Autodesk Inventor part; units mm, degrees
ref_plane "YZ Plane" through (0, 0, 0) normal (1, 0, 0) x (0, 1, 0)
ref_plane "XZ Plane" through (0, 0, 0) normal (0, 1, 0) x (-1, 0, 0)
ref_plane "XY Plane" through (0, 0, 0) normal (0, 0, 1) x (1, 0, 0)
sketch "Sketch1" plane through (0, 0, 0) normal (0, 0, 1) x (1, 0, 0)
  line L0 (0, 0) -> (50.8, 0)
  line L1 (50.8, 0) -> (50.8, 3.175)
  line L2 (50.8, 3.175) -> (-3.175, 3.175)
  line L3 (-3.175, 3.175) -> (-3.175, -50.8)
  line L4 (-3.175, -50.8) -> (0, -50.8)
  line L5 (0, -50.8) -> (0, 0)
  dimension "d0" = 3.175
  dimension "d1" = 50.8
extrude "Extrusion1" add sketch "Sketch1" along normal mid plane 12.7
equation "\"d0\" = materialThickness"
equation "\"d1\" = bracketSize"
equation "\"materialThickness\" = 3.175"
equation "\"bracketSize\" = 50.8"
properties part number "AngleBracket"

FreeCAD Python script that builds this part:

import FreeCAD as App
import Part
import Sketcher
from FreeCAD import Vector
Q = App.Units.Quantity


def add_polygon(sketch, points):
    """Adds a closed chain of lines whose ends are joined by coincident constraints."""
    first, n = sketch.GeometryCount, len(points)
    for a, b in zip(points, points[1:] + points[:1]):
        sketch.addGeometry(Part.LineSegment(App.Vector(*a, 0), App.Vector(*b, 0)), False)
    for i in range(n):
        sketch.addConstraint(Sketcher.Constraint("Coincident", first + i, 2, first + (i + 1) % n, 1))

doc = App.newDocument("Part")
body = doc.addObject("PartDesign::Body", "Body")

# Sketch on XY plane
sketch1 = body.newObject("Sketcher::SketchObject", "Sketch")
sketch1.AttachmentSupport = (doc.getObject("XY_Plane"), [""])
sketch1.MapMode = "FlatFace"
add_polygon(sketch1, [(0, -50.8), (0, 0), (50.8, 0), (50.8, 3.175), (-3.175, 3.175), (-3.175, -50.8)])  # lines 0-5
sketch1.addConstraint(Sketcher.Constraint("Vertical", 0))
sketch1.addConstraint(Sketcher.Constraint("Horizontal", 1))
sketch1.addConstraint(Sketcher.Constraint("Vertical", 2))
sketch1.addConstraint(Sketcher.Constraint("Horizontal", 3))
sketch1.addConstraint(Sketcher.Constraint("Vertical", 4))
sketch1.addConstraint(Sketcher.Constraint("Horizontal", 5))
sketch1.addConstraint(Sketcher.Constraint("Coincident", 0, 2, -1, 1))
sketch1.addConstraint(Sketcher.Constraint("Equal", 1, 0))
sketch1.addConstraint(Sketcher.Constraint("Equal", 5, 2))
sketch1.addConstraint(Sketcher.Constraint("DistanceX", 1, 1, 1, 2, Q("2 in")))
sketch1.addConstraint(Sketcher.Constraint("DistanceX", 5, 1, 5, 2, Q("0.125 in")))
pad1 = body.newObject("PartDesign::Pad", "Pad")
pad1.Profile = sketch1
pad1.Length = Q("0.5 in")
pad1.Midplane = True

doc.recompute()
